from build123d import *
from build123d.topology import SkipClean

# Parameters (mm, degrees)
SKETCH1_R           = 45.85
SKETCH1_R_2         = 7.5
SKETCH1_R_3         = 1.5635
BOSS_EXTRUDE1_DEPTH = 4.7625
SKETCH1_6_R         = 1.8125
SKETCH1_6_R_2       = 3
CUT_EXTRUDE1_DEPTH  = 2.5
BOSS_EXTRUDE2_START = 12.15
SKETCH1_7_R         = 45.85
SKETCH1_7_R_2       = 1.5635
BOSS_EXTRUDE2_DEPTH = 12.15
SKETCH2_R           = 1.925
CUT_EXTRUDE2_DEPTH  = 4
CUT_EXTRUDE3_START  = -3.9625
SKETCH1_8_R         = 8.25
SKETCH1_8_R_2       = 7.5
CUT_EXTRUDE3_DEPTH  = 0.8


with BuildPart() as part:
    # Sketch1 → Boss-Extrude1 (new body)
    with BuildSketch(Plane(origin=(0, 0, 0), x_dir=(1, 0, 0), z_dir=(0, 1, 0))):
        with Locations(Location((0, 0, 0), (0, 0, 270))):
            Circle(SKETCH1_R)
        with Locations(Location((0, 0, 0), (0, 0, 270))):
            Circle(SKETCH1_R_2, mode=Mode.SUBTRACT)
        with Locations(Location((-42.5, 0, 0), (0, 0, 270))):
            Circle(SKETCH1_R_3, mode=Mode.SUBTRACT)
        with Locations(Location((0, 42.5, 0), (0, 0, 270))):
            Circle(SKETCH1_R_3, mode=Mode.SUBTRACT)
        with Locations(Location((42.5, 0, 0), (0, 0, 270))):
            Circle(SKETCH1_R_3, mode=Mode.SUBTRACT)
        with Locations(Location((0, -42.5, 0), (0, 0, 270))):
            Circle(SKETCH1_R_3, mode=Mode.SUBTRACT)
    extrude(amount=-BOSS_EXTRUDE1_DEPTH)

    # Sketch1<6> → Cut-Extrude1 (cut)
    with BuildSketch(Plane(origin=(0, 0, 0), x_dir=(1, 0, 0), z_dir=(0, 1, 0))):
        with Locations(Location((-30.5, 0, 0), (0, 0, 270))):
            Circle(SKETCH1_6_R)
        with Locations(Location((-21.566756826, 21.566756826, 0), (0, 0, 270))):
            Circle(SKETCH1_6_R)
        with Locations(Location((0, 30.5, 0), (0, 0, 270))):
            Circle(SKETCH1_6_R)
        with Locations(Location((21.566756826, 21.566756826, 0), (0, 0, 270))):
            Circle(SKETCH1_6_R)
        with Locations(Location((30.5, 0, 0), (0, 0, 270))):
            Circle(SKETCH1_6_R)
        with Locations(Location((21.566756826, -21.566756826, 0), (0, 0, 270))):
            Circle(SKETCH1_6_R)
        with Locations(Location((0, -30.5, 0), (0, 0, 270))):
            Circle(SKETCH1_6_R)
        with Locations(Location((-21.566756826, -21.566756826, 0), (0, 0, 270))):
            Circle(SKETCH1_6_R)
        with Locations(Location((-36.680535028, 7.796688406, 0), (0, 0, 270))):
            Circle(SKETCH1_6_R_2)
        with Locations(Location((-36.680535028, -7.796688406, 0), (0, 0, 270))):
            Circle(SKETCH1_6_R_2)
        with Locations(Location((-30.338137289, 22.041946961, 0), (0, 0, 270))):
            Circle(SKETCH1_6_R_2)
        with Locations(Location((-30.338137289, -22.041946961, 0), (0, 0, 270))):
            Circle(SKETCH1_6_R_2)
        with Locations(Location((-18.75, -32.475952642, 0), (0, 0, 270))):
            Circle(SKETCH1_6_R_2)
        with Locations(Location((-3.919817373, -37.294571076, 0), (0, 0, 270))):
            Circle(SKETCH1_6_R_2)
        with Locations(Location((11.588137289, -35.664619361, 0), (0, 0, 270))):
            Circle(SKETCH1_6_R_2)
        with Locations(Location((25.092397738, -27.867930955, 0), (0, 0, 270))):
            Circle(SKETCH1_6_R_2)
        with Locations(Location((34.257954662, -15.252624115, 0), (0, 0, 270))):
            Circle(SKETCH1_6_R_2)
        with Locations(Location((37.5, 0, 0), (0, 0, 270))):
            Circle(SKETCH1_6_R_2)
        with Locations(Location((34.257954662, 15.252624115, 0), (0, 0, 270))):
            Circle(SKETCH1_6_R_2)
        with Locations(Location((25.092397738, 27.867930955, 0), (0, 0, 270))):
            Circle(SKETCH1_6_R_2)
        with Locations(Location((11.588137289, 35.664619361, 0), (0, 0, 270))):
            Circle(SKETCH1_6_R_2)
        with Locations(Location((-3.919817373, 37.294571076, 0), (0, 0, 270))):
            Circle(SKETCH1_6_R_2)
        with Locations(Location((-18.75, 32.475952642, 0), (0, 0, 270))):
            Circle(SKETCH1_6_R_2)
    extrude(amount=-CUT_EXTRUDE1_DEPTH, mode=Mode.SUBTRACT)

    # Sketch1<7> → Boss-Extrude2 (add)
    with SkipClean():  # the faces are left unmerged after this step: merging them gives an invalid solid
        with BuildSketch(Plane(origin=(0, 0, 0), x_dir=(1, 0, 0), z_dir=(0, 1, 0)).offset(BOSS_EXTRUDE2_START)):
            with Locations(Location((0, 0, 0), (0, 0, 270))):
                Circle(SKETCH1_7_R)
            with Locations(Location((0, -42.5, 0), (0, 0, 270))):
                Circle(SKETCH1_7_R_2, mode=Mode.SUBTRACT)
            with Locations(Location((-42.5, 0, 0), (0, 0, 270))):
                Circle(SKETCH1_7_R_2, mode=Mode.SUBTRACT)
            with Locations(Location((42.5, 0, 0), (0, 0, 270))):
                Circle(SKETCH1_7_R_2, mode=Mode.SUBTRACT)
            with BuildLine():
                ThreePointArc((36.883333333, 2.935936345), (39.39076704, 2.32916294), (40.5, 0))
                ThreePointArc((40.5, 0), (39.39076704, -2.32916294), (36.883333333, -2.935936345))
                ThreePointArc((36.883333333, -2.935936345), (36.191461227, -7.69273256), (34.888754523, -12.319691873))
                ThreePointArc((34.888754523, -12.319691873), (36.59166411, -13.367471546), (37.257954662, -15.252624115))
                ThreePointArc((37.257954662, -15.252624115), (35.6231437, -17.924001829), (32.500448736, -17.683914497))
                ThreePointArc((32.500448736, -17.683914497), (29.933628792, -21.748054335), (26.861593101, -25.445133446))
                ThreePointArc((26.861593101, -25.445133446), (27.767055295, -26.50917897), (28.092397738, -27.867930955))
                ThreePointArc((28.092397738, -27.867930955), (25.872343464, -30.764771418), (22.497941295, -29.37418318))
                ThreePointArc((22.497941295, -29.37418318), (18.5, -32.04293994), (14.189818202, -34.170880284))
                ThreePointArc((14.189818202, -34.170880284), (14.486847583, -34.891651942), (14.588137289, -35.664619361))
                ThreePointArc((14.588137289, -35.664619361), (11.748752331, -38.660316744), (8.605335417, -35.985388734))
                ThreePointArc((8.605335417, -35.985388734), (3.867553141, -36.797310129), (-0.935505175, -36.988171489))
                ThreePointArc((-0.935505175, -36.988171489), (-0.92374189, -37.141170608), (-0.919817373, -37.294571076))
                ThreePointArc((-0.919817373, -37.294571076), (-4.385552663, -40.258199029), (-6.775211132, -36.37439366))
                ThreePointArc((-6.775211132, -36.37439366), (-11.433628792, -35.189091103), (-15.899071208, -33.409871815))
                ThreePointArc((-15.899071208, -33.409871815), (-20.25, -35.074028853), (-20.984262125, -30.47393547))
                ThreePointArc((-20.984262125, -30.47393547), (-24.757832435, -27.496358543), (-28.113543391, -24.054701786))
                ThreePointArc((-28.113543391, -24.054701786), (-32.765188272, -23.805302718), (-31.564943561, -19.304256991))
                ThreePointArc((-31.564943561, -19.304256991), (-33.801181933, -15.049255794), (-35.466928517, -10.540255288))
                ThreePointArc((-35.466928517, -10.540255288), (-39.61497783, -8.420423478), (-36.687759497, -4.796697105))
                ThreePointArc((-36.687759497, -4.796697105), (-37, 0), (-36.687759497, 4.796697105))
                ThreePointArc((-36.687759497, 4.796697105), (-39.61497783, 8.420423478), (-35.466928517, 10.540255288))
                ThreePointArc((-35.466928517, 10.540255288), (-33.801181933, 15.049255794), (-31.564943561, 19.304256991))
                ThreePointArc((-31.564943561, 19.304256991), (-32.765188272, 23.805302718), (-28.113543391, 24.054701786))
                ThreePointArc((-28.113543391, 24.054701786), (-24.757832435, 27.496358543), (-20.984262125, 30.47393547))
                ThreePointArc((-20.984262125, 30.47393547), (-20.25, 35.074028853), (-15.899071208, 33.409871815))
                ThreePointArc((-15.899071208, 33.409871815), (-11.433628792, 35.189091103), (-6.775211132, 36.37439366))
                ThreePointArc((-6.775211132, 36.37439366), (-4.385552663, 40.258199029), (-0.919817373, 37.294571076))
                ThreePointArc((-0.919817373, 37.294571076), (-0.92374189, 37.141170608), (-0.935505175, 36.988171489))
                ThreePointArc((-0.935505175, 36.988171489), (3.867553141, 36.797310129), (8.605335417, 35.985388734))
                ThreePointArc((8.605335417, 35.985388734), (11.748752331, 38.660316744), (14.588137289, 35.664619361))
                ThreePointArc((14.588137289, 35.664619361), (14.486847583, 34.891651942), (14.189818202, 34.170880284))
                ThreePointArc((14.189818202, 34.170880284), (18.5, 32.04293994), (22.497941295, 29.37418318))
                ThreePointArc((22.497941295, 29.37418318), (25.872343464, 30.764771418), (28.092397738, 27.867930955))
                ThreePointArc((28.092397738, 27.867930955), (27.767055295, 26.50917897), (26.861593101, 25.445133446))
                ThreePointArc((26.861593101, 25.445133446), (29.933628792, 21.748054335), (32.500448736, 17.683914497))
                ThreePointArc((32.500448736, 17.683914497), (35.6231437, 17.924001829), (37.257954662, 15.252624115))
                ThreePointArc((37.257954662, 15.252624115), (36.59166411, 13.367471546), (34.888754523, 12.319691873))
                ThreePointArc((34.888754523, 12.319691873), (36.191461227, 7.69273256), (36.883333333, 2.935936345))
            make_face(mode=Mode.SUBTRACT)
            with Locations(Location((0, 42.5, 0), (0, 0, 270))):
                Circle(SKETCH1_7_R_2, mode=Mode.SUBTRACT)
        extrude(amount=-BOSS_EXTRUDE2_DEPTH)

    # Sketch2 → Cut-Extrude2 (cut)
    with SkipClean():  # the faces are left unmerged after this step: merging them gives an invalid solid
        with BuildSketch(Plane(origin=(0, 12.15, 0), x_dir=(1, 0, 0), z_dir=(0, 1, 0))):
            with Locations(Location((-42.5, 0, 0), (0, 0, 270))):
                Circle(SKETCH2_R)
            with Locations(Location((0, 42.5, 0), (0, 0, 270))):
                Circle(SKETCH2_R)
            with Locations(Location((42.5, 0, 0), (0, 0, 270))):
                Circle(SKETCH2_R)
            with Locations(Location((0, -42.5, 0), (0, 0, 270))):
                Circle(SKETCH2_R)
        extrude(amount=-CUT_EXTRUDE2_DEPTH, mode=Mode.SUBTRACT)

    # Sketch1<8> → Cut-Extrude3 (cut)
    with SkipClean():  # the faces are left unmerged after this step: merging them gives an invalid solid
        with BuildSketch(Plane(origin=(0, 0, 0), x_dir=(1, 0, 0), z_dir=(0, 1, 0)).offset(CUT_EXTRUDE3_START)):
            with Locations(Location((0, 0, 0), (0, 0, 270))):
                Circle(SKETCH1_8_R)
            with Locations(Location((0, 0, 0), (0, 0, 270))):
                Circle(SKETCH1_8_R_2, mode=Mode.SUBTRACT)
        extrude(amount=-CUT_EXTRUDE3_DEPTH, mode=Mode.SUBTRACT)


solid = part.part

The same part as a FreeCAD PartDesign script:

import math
import FreeCAD as App
import Part
import Sketcher
from FreeCAD import Vector
Q = App.Units.Quantity

doc = App.newDocument("Part")
params = doc.addObject("Spreadsheet::Sheet", "Params")
for row, (alias, value) in enumerate([
    ("sketch1_diameter", "15 mm"),
    ("sketch1_diameter2", "91.7 mm"),
    ("pad1_length", "4.7625 mm"),
    ("sketch2_diameter", "6 mm"),
    ("pocket1_length", "2.5 mm"),
    ("sketch3_radius", "37 mm"),
    ("sketch3_radius2", "3 mm"),
    ("sketch3_diameter", "91.7 mm"),
    ("pad2_length", "12.15 mm"),
    ("sketch4_diameter", "3.85 mm"),
    ("pocket2_length", "4 mm"),
    ("sketch5_diameter", "15 mm"),
    ("sketch5_diameter2", "16.5 mm"),
    ("pocket3_length", "0.8 mm"),
], start=1):
    params.set(f"A{row}", alias)
    params.set(f"B{row}", "=" + value)
    params.setAlias(f"B{row}", alias)

body = doc.addObject("PartDesign::Body", "Body")

sketch1 = body.newObject("Sketcher::SketchObject", "Sketch")
sketch1.AttachmentSupport = (doc.getObject("XZ_Plane"), [""])
sketch1.MapMode = "FlatFace"
sketch1.addGeometry(Part.Circle(Vector(0, 0, 0), Vector(0, 0, 1), 45.9), False)
sketch1.addGeometry(Part.Circle(Vector(0, -42.5, 0), Vector(0, 0, 1), 1.6), False)
sketch1.addGeometry(Part.Circle(Vector(-42.5, 0, 0), Vector(0, 0, 1), 1.6), False)
sketch1.addGeometry(Part.Circle(Vector(42.5, 0, 0), Vector(0, 0, 1), 1.6), False)
sketch1.addGeometry(Part.Circle(Vector(0, 0, 0), Vector(0, 0, 1), 7.5), False)
sketch1.addGeometry(Part.Circle(Vector(0, 42.5, 0), Vector(0, 0, 1), 1.6), False)
sketch1.addConstraint(Sketcher.Constraint("Coincident", 0, 3, -1, 1))
sketch1.addConstraint(Sketcher.Constraint("Coincident", 4, 3, -1, 1))
sketch1.addConstraint(Sketcher.Constraint("Equal", 1, 2))
sketch1.addConstraint(Sketcher.Constraint("Equal", 2, 3))
sketch1.addConstraint(Sketcher.Constraint("Equal", 3, 5))
sketch1.addConstraint(Sketcher.Constraint("Symmetric", 2, 3, 3, 3, -1, 1))
sketch1.addConstraint(Sketcher.Constraint("Symmetric", 1, 3, 5, 3, -1, 1))
sketch1.addConstraint(Sketcher.Constraint("PointOnObject", 1, 3, -2))
sketch1.addConstraint(Sketcher.Constraint("PointOnObject", 2, 3, -1))
sketch1.addConstraint(Sketcher.Constraint("Diameter", 4, Q("15 mm")))
sketch1.addConstraint(Sketcher.Constraint("Diameter", 0, Q("91.7 mm")))
sketch1.addConstraint(Sketcher.Constraint("Diameter", 1, Q("3.127 mm")))
sketch1.addConstraint(Sketcher.Constraint("DistanceX", 2, 3, 3, 3, Q("85 mm")))
sketch1.addConstraint(Sketcher.Constraint("DistanceY", 1, 3, 5, 3, Q("85 mm")))
sketch1.setExpression("Constraints[9]", "Params.sketch1_diameter")
sketch1.setExpression("Constraints[10]", "Params.sketch1_diameter2")
pad1 = body.newObject("PartDesign::Pad", "Pad")
pad1.Profile = sketch1
pad1.setExpression("Length", "Params.pad1_length")

sketch2 = body.newObject("Sketcher::SketchObject", "Sketch001")
sketch2.AttachmentSupport = (doc.getObject("XZ_Plane"), [""])
sketch2.MapMode = "FlatFace"
sketch2.addGeometry(Part.Circle(Vector(-30.5, 0, 0), Vector(0, 0, 1), 1.8), False)
sketch2.addGeometry(Part.Circle(Vector(-21.6, -21.6, 0), Vector(0, 0, 1), 1.8), False)
sketch2.addGeometry(Part.Circle(Vector(0, -30.5, 0), Vector(0, 0, 1), 1.8), False)
sketch2.addGeometry(Part.Circle(Vector(21.6, -21.6, 0), Vector(0, 0, 1), 1.8), False)
sketch2.addGeometry(Part.Circle(Vector(30.5, 0, 0), Vector(0, 0, 1), 1.8), False)
sketch2.addGeometry(Part.Circle(Vector(21.6, 21.6, 0), Vector(0, 0, 1), 1.8), False)
sketch2.addGeometry(Part.Circle(Vector(0, 30.5, 0), Vector(0, 0, 1), 1.8), False)
sketch2.addGeometry(Part.Circle(Vector(-21.6, 21.6, 0), Vector(0, 0, 1), 1.8), False)
sketch2.addGeometry(Part.Circle(Vector(-36.7, -7.8, 0), Vector(0, 0, 1), 3), False)
sketch2.addGeometry(Part.Circle(Vector(-36.7, 7.8, 0), Vector(0, 0, 1), 3), False)
sketch2.addGeometry(Part.Circle(Vector(-30.3, -22, 0), Vector(0, 0, 1), 3), False)
sketch2.addGeometry(Part.Circle(Vector(-30.3, 22, 0), Vector(0, 0, 1), 3), False)
sketch2.addGeometry(Part.Circle(Vector(-18.8, 32.5, 0), Vector(0, 0, 1), 3), False)
sketch2.addGeometry(Part.Circle(Vector(-3.9, 37.3, 0), Vector(0, 0, 1), 3), False)
sketch2.addGeometry(Part.Circle(Vector(11.6, 35.7, 0), Vector(0, 0, 1), 3), False)
sketch2.addGeometry(Part.Circle(Vector(25.1, 27.9, 0), Vector(0, 0, 1), 3), False)
sketch2.addGeometry(Part.Circle(Vector(34.3, 15.3, 0), Vector(0, 0, 1), 3), False)
sketch2.addGeometry(Part.Circle(Vector(37.5, 0, 0), Vector(0, 0, 1), 3), False)
sketch2.addGeometry(Part.Circle(Vector(34.3, -15.3, 0), Vector(0, 0, 1), 3), False)
sketch2.addGeometry(Part.Circle(Vector(25.1, -27.9, 0), Vector(0, 0, 1), 3), False)
sketch2.addGeometry(Part.Circle(Vector(11.6, -35.7, 0), Vector(0, 0, 1), 3), False)
sketch2.addGeometry(Part.Circle(Vector(-3.9, -37.3, 0), Vector(0, 0, 1), 3), False)
sketch2.addGeometry(Part.Circle(Vector(-18.8, -32.5, 0), Vector(0, 0, 1), 3), False)
sketch2.addConstraint(Sketcher.Constraint("Equal", 0, 1))
sketch2.addConstraint(Sketcher.Constraint("Equal", 1, 2))
sketch2.addConstraint(Sketcher.Constraint("Equal", 2, 3))
sketch2.addConstraint(Sketcher.Constraint("Equal", 3, 4))
sketch2.addConstraint(Sketcher.Constraint("Equal", 4, 5))
sketch2.addConstraint(Sketcher.Constraint("Equal", 5, 6))
sketch2.addConstraint(Sketcher.Constraint("Equal", 6, 7))
sketch2.addConstraint(Sketcher.Constraint("Equal", 8, 9))
sketch2.addConstraint(Sketcher.Constraint("Equal", 9, 10))
sketch2.addConstraint(Sketcher.Constraint("Equal", 10, 11))
sketch2.addConstraint(Sketcher.Constraint("Equal", 11, 12))
sketch2.addConstraint(Sketcher.Constraint("Equal", 12, 13))
sketch2.addConstraint(Sketcher.Constraint("Equal", 13, 14))
sketch2.addConstraint(Sketcher.Constraint("Equal", 14, 15))
sketch2.addConstraint(Sketcher.Constraint("Equal", 15, 16))
sketch2.addConstraint(Sketcher.Constraint("Equal", 16, 17))
sketch2.addConstraint(Sketcher.Constraint("Equal", 17, 18))
sketch2.addConstraint(Sketcher.Constraint("Equal", 18, 19))
sketch2.addConstraint(Sketcher.Constraint("Equal", 19, 20))
sketch2.addConstraint(Sketcher.Constraint("Equal", 20, 21))
sketch2.addConstraint(Sketcher.Constraint("Equal", 21, 22))
sketch2.addConstraint(Sketcher.Constraint("Symmetric", 0, 3, 4, 3, -1, 1))
sketch2.addConstraint(Sketcher.Constraint("Symmetric", 1, 3, 5, 3, -1, 1))
sketch2.addConstraint(Sketcher.Constraint("Symmetric", 2, 3, 6, 3, -1, 1))
sketch2.addConstraint(Sketcher.Constraint("Symmetric", 3, 3, 7, 3, -1, 1))
sketch2.addConstraint(Sketcher.Constraint("Symmetric", 1, 3, 3, 3, -2))
sketch2.addConstraint(Sketcher.Constraint("Symmetric", 8, 3, 9, 3, -1))
sketch2.addConstraint(Sketcher.Constraint("Symmetric", 10, 3, 11, 3, -1))
sketch2.addConstraint(Sketcher.Constraint("Symmetric", 16, 3, 18, 3, -1))
sketch2.addConstraint(Sketcher.Constraint("Symmetric", 15, 3, 19, 3, -1))
sketch2.addConstraint(Sketcher.Constraint("Symmetric", 14, 3, 20, 3, -1))
sketch2.addConstraint(Sketcher.Constraint("Symmetric", 13, 3, 21, 3, -1))
sketch2.addConstraint(Sketcher.Constraint("Symmetric", 12, 3, 22, 3, -1))
sketch2.addConstraint(Sketcher.Constraint("PointOnObject", 0, 3, -1))
sketch2.addConstraint(Sketcher.Constraint("PointOnObject", 2, 3, -2))
sketch2.addConstraint(Sketcher.Constraint("PointOnObject", 17, 3, -1))
sketch2.addConstraint(Sketcher.Constraint("Diameter", 8, Q("6 mm")))
sketch2.addConstraint(Sketcher.Constraint("Diameter", 0, Q("3.625 mm")))
sketch2.addConstraint(Sketcher.Constraint("DistanceX", 0, 3, 4, 3, Q("61 mm")))
sketch2.addConstraint(Sketcher.Constraint("DistanceX", 4, 3, 17, 3, Q("7 mm")))
sketch2.addConstraint(Sketcher.Constraint("DistanceY", 2, 3, -1, 1, Q("30.5 mm")))
sketch2.addConstraint(Sketcher.Constraint("DistanceX", 12, 3, -1, 1, Q("18.75 mm")))
sketch2.addConstraint(Sketcher.Constraint("DistanceY", 8, 3, -1, 1, Q("7.796688 mm")))
sketch2.addConstraint(Sketcher.Constraint("DistanceY", -1, 1, 13, 3, Q("37.294571 mm")))
sketch2.addConstraint(Sketcher.Constraint("DistanceY", -1, 1, 14, 3, Q("35.664619 mm")))
sketch2.addConstraint(Sketcher.Constraint("DistanceY", -1, 1, 15, 3, Q("27.867931 mm")))
sketch2.addConstraint(Sketcher.Constraint("DistanceX", 8, 3, 1, 3, Q("15.113778 mm")))
sketch2.addConstraint(Sketcher.Constraint("DistanceY", 1, 3, 8, 3, Q("13.770068 mm")))
sketch2.addConstraint(Sketcher.Constraint("DistanceX", 10, 3, 1, 3, Q("8.77138 mm")))
sketch2.addConstraint(Sketcher.Constraint("DistanceY", 10, 3, 1, 3, Q("0.47519 mm")))
sketch2.addConstraint(Sketcher.Constraint("DistanceY", 12, 3, 13, 3, Q("4.818618 mm")))
sketch2.addConstraint(Sketcher.Constraint("DistanceX", 7, 3, 13, 3, Q("17.646939 mm")))
sketch2.addConstraint(Sketcher.Constraint("DistanceX", 14, 3, 5, 3, Q("9.97862 mm")))
sketch2.addConstraint(Sketcher.Constraint("DistanceX", 5, 3, 15, 3, Q("3.525641 mm")))
sketch2.addConstraint(Sketcher.Constraint("DistanceY", 18, 3, 16, 3, Q("30.505248 mm")))
sketch2.addConstraint(Sketcher.Constraint("DistanceX", 1, 3, -1, 1, Q("21.566757 mm")))
sketch2.addConstraint(Sketcher.Constraint("DistanceX", -1, 1, 16, 3, Q("34.257955 mm")))
sketch2.setExpression("Constraints[36]", "Params.sketch2_diameter")
pocket1 = body.newObject("PartDesign::Pocket", "Pocket")
pocket1.Profile = sketch2
pocket1.setExpression("Length", "Params.pocket1_length")
pocket1.Reversed = True

sketch3 = body.newObject("Sketcher::SketchObject", "Sketch002")
sketch3.AttachmentSupport = (doc.getObject("XZ_Plane"), [""])
sketch3.MapMode = "FlatFace"
sketch3.AttachmentOffset = App.Placement(Vector(0, 0, -12.15), App.Rotation())
sketch3.addGeometry(Part.Circle(Vector(0, 0, 0), Vector(0, 0, 1), 45.85), False)
sketch3.addGeometry(Part.Circle(Vector(0, -42.5, 0), Vector(0, 0, 1), 1.56), False)
sketch3.addGeometry(Part.Circle(Vector(-42.5, 0, 0), Vector(0, 0, 1), 1.56), False)
sketch3.addGeometry(Part.Circle(Vector(42.5, 0, 0), Vector(0, 0, 1), 1.56), False)
sketch3.addGeometry(Part.ArcOfCircle(Part.Circle(Vector(0, 0, 0), Vector(0, 0, 1), 37), math.radians(-19.45), math.radians(-4.55)), False)
sketch3.addGeometry(Part.ArcOfCircle(Part.Circle(Vector(37.5, 0, 0), Vector(0, 0, 1), 3), math.radians(-102), math.radians(0)), False)
sketch3.addGeometry(Part.ArcOfCircle(Part.Circle(Vector(37.5, 0, 0), Vector(0, 0, 1), 3), math.radians(0), math.radians(102)), False)
sketch3.addGeometry(Part.ArcOfCircle(Part.Circle(Vector(0, 0, 0), Vector(0, 0, 1), 37), math.radians(4.55), math.radians(19.45)), False)
sketch3.addGeometry(Part.ArcOfCircle(Part.Circle(Vector(34.26, 15.25, 0), Vector(0, 0, 1), 3), math.radians(-78), math.radians(0)), False)
sketch3.addGeometry(Part.ArcOfCircle(Part.Circle(Vector(34.26, 15.25, 0), Vector(0, 0, 1), 3), math.radians(0), math.radians(126)), False)
sketch3.addGeometry(Part.ArcOfCircle(Part.Circle(Vector(0, 0, 0), Vector(0, 0, 1), 37), math.radians(28.55), math.radians(43.45)), False)
sketch3.addGeometry(Part.ArcOfCircle(Part.Circle(Vector(25.09, 27.87, 0), Vector(0, 0, 1), 3), math.radians(-54), math.radians(0)), False)
sketch3.addGeometry(Part.ArcOfCircle(Part.Circle(Vector(25.09, 27.87, 0), Vector(0, 0, 1), 3), math.radians(0), math.radians(150)), False)
sketch3.addGeometry(Part.ArcOfCircle(Part.Circle(Vector(0, 0, 0), Vector(0, 0, 1), 37), math.radians(52.55), math.radians(67.45)), False)
sketch3.addGeometry(Part.ArcOfCircle(Part.Circle(Vector(11.59, 35.66, 0), Vector(0, 0, 1), 3), math.radians(-30), math.radians(0)), False)
sketch3.addGeometry(Part.ArcOfCircle(Part.Circle(Vector(11.59, 35.66, 0), Vector(0, 0, 1), 3), math.radians(0), math.radians(174)), False)
sketch3.addGeometry(Part.ArcOfCircle(Part.Circle(Vector(0, 0, 0), Vector(0, 0, 1), 37), math.radians(76.55), math.radians(91.45)), False)
sketch3.addGeometry(Part.ArcOfCircle(Part.Circle(Vector(-3.92, 37.29, 0), Vector(0, 0, 1), 3), math.radians(-5.86), math.radians(0)), False)
sketch3.addGeometry(Part.ArcOfCircle(Part.Circle(Vector(-3.92, 37.29, 0), Vector(0, 0, 1), 3), math.radians(0), math.radians(198)), False)
sketch3.addGeometry(Part.ArcOfCircle(Part.Circle(Vector(0, 0, 0), Vector(0, 0, 1), 37), math.radians(100.55), math.radians(115.45)), False)
sketch3.addGeometry(Part.ArcOfCircle(Part.Circle(Vector(-18.75, 32.48, 0), Vector(0, 0, 1), 3), math.radians(18), math.radians(222)), False)
sketch3.addGeometry(Part.ArcOfCircle(Part.Circle(Vector(0, 0, 0), Vector(0, 0, 1), 37), math.radians(124.55), math.radians(139.45)), False)
sketch3.addGeometry(Part.ArcOfCircle(Part.Circle(Vector(-30.34, 22.04, 0), Vector(0, 0, 1), 3), math.radians(42), math.radians(246)), False)
sketch3.addGeometry(Part.ArcOfCircle(Part.Circle(Vector(0, 0, 0), Vector(0, 0, 1), 37), math.radians(148.55), math.radians(163.45)), False)
sketch3.addGeometry(Part.ArcOfCircle(Part.Circle(Vector(-36.68, 7.8, 0), Vector(0, 0, 1), 3), math.radians(66), math.radians(270)), False)
sketch3.addGeometry(Part.ArcOfCircle(Part.Circle(Vector(0, 0, 0), Vector(0, 0, 1), 37), math.radians(172.55), math.radians(187.45)), False)
sketch3.addGeometry(Part.ArcOfCircle(Part.Circle(Vector(-36.68, -7.8, 0), Vector(0, 0, 1), 3), math.radians(90), math.radians(294)), False)
sketch3.addGeometry(Part.ArcOfCircle(Part.Circle(Vector(0, 0, 0), Vector(0, 0, 1), 37), math.radians(-163.45), math.radians(-148.55)), False)
sketch3.addGeometry(Part.ArcOfCircle(Part.Circle(Vector(-30.34, -22.04, 0), Vector(0, 0, 1), 3), math.radians(114), math.radians(318)), False)
sketch3.addGeometry(Part.ArcOfCircle(Part.Circle(Vector(0, 0, 0), Vector(0, 0, 1), 37), math.radians(-139.45), math.radians(-124.55)), False)
sketch3.addGeometry(Part.ArcOfCircle(Part.Circle(Vector(-18.75, -32.48, 0), Vector(0, 0, 1), 3), math.radians(138), math.radians(342)), False)
sketch3.addGeometry(Part.ArcOfCircle(Part.Circle(Vector(0, 0, 0), Vector(0, 0, 1), 37), math.radians(-115.45), math.radians(-100.55)), False)
sketch3.addGeometry(Part.ArcOfCircle(Part.Circle(Vector(-3.92, -37.29, 0), Vector(0, 0, 1), 3), math.radians(162), math.radians(360)), False)
sketch3.addGeometry(Part.ArcOfCircle(Part.Circle(Vector(-3.92, -37.29, 0), Vector(0, 0, 1), 3), math.radians(0), math.radians(5.86)), False)
sketch3.addGeometry(Part.ArcOfCircle(Part.Circle(Vector(0, 0, 0), Vector(0, 0, 1), 37), math.radians(-91.45), math.radians(-76.55)), False)
sketch3.addGeometry(Part.ArcOfCircle(Part.Circle(Vector(11.59, -35.66, 0), Vector(0, 0, 1), 3), math.radians(-174), math.radians(0)), False)
sketch3.addGeometry(Part.ArcOfCircle(Part.Circle(Vector(11.59, -35.66, 0), Vector(0, 0, 1), 3), math.radians(0), math.radians(30)), False)
sketch3.addGeometry(Part.ArcOfCircle(Part.Circle(Vector(0, 0, 0), Vector(0, 0, 1), 37), math.radians(-67.45), math.radians(-52.55)), False)
sketch3.addGeometry(Part.ArcOfCircle(Part.Circle(Vector(25.09, -27.87, 0), Vector(0, 0, 1), 3), math.radians(-150), math.radians(0)), False)
sketch3.addGeometry(Part.ArcOfCircle(Part.Circle(Vector(25.09, -27.87, 0), Vector(0, 0, 1), 3), math.radians(0), math.radians(54)), False)
sketch3.addGeometry(Part.ArcOfCircle(Part.Circle(Vector(0, 0, 0), Vector(0, 0, 1), 37), math.radians(-43.45), math.radians(-28.55)), False)
sketch3.addGeometry(Part.ArcOfCircle(Part.Circle(Vector(34.26, -15.25, 0), Vector(0, 0, 1), 3), math.radians(-126), math.radians(0)), False)
sketch3.addGeometry(Part.ArcOfCircle(Part.Circle(Vector(34.26, -15.25, 0), Vector(0, 0, 1), 3), math.radians(0), math.radians(78)), False)
sketch3.addGeometry(Part.Circle(Vector(0, 42.5, 0), Vector(0, 0, 1), 1.56), False)
sketch3.addConstraint(Sketcher.Constraint("Coincident", 4, 2, 5, 1))
sketch3.addConstraint(Sketcher.Constraint("Tangent", 5, 2, 6, 1))
sketch3.addConstraint(Sketcher.Constraint("Coincident", 6, 2, 7, 1))
sketch3.addConstraint(Sketcher.Constraint("Coincident", 7, 2, 8, 1))
sketch3.addConstraint(Sketcher.Constraint("Tangent", 8, 2, 9, 1))
sketch3.addConstraint(Sketcher.Constraint("Coincident", 9, 2, 10, 1))
sketch3.addConstraint(Sketcher.Constraint("Coincident", 10, 2, 11, 1))
sketch3.addConstraint(Sketcher.Constraint("Tangent", 11, 2, 12, 1))
sketch3.addConstraint(Sketcher.Constraint("Coincident", 12, 2, 13, 1))
sketch3.addConstraint(Sketcher.Constraint("Coincident", 13, 2, 14, 1))
sketch3.addConstraint(Sketcher.Constraint("Tangent", 14, 2, 15, 1))
sketch3.addConstraint(Sketcher.Constraint("Coincident", 15, 2, 16, 1))
sketch3.addConstraint(Sketcher.Constraint("Coincident", 16, 2, 17, 1))
sketch3.addConstraint(Sketcher.Constraint("Tangent", 17, 2, 18, 1))
sketch3.addConstraint(Sketcher.Constraint("Coincident", 18, 2, 19, 1))
sketch3.addConstraint(Sketcher.Constraint("Coincident", 19, 2, 20, 1))
sketch3.addConstraint(Sketcher.Constraint("Coincident", 20, 2, 21, 1))
sketch3.addConstraint(Sketcher.Constraint("Coincident", 21, 2, 22, 1))
sketch3.addConstraint(Sketcher.Constraint("Coincident", 22, 2, 23, 1))
sketch3.addConstraint(Sketcher.Constraint("Coincident", 23, 2, 24, 1))
sketch3.addConstraint(Sketcher.Constraint("Coincident", 24, 2, 25, 1))
sketch3.addConstraint(Sketcher.Constraint("Coincident", 25, 2, 26, 1))
sketch3.addConstraint(Sketcher.Constraint("Coincident", 26, 2, 27, 1))
sketch3.addConstraint(Sketcher.Constraint("Coincident", 27, 2, 28, 1))
sketch3.addConstraint(Sketcher.Constraint("Coincident", 28, 2, 29, 1))
sketch3.addConstraint(Sketcher.Constraint("Coincident", 29, 2, 30, 1))
sketch3.addConstraint(Sketcher.Constraint("Coincident", 30, 2, 31, 1))
sketch3.addConstraint(Sketcher.Constraint("Coincident", 31, 2, 32, 1))
sketch3.addConstraint(Sketcher.Constraint("Tangent", 32, 2, 33, 1))
sketch3.addConstraint(Sketcher.Constraint("Coincident", 33, 2, 34, 1))
sketch3.addConstraint(Sketcher.Constraint("Coincident", 34, 2, 35, 1))
sketch3.addConstraint(Sketcher.Constraint("Tangent", 35, 2, 36, 1))
sketch3.addConstraint(Sketcher.Constraint("Coincident", 36, 2, 37, 1))
sketch3.addConstraint(Sketcher.Constraint("Coincident", 37, 2, 38, 1))
sketch3.addConstraint(Sketcher.Constraint("Tangent", 38, 2, 39, 1))
sketch3.addConstraint(Sketcher.Constraint("Coincident", 39, 2, 40, 1))
sketch3.addConstraint(Sketcher.Constraint("Coincident", 40, 2, 41, 1))
sketch3.addConstraint(Sketcher.Constraint("Tangent", 41, 2, 42, 1))
sketch3.addConstraint(Sketcher.Constraint("Coincident", 42, 2, 4, 1))
sketch3.addConstraint(Sketcher.Constraint("Coincident", 0, 3, -1, 1))
sketch3.addConstraint(Sketcher.Constraint("Coincident", 4, 3, -1, 1))
sketch3.addConstraint(Sketcher.Constraint("Coincident", 7, 3, -1, 1))
sketch3.addConstraint(Sketcher.Constraint("Coincident", 10, 3, -1, 1))
sketch3.addConstraint(Sketcher.Constraint("Coincident", 13, 3, -1, 1))
sketch3.addConstraint(Sketcher.Constraint("Coincident", 16, 3, -1, 1))
sketch3.addConstraint(Sketcher.Constraint("Coincident", 19, 3, -1, 1))
sketch3.addConstraint(Sketcher.Constraint("Coincident", 21, 3, -1, 1))
sketch3.addConstraint(Sketcher.Constraint("Coincident", 23, 3, -1, 1))
sketch3.addConstraint(Sketcher.Constraint("Coincident", 25, 3, -1, 1))
sketch3.addConstraint(Sketcher.Constraint("Coincident", 27, 3, -1, 1))
sketch3.addConstraint(Sketcher.Constraint("Coincident", 29, 3, -1, 1))
sketch3.addConstraint(Sketcher.Constraint("Coincident", 31, 3, -1, 1))
sketch3.addConstraint(Sketcher.Constraint("Coincident", 34, 3, -1, 1))
sketch3.addConstraint(Sketcher.Constraint("Coincident", 37, 3, -1, 1))
sketch3.addConstraint(Sketcher.Constraint("Coincident", 40, 3, -1, 1))
sketch3.addConstraint(Sketcher.Constraint("Equal", 1, 2))
sketch3.addConstraint(Sketcher.Constraint("Equal", 2, 3))
sketch3.addConstraint(Sketcher.Constraint("Equal", 5, 6))
sketch3.addConstraint(Sketcher.Constraint("Equal", 4, 7))
sketch3.addConstraint(Sketcher.Constraint("Equal", 6, 8))
sketch3.addConstraint(Sketcher.Constraint("Equal", 8, 9))
sketch3.addConstraint(Sketcher.Constraint("Equal", 7, 10))
sketch3.addConstraint(Sketcher.Constraint("Equal", 9, 11))
sketch3.addConstraint(Sketcher.Constraint("Equal", 11, 12))
sketch3.addConstraint(Sketcher.Constraint("Equal", 10, 13))
sketch3.addConstraint(Sketcher.Constraint("Equal", 12, 14))
sketch3.addConstraint(Sketcher.Constraint("Equal", 14, 15))
sketch3.addConstraint(Sketcher.Constraint("Equal", 13, 16))
sketch3.addConstraint(Sketcher.Constraint("Equal", 15, 17))
sketch3.addConstraint(Sketcher.Constraint("Equal", 17, 18))
sketch3.addConstraint(Sketcher.Constraint("Equal", 16, 19))
sketch3.addConstraint(Sketcher.Constraint("Equal", 18, 20))
sketch3.addConstraint(Sketcher.Constraint("Equal", 19, 21))
sketch3.addConstraint(Sketcher.Constraint("Equal", 20, 22))
sketch3.addConstraint(Sketcher.Constraint("Equal", 21, 23))
sketch3.addConstraint(Sketcher.Constraint("Equal", 22, 24))
sketch3.addConstraint(Sketcher.Constraint("Equal", 23, 25))
sketch3.addConstraint(Sketcher.Constraint("Equal", 24, 26))
sketch3.addConstraint(Sketcher.Constraint("Equal", 25, 27))
sketch3.addConstraint(Sketcher.Constraint("Equal", 26, 28))
sketch3.addConstraint(Sketcher.Constraint("Equal", 27, 29))
sketch3.addConstraint(Sketcher.Constraint("Equal", 28, 30))
sketch3.addConstraint(Sketcher.Constraint("Equal", 29, 31))
sketch3.addConstraint(Sketcher.Constraint("Equal", 30, 32))
sketch3.addConstraint(Sketcher.Constraint("Equal", 32, 33))
sketch3.addConstraint(Sketcher.Constraint("Equal", 31, 34))
sketch3.addConstraint(Sketcher.Constraint("Equal", 33, 35))
sketch3.addConstraint(Sketcher.Constraint("Equal", 35, 36))
sketch3.addConstraint(Sketcher.Constraint("Equal", 34, 37))
sketch3.addConstraint(Sketcher.Constraint("Equal", 36, 38))
sketch3.addConstraint(Sketcher.Constraint("Equal", 38, 39))
sketch3.addConstraint(Sketcher.Constraint("Equal", 37, 40))
sketch3.addConstraint(Sketcher.Constraint("Equal", 39, 41))
sketch3.addConstraint(Sketcher.Constraint("Equal", 41, 42))
sketch3.addConstraint(Sketcher.Constraint("Equal", 3, 43))
sketch3.addConstraint(Sketcher.Constraint("Symmetric", 2, 3, 3, 3, -1, 1))
sketch3.addConstraint(Sketcher.Constraint("Symmetric", 1, 3, 43, 3, -1, 1))
sketch3.addConstraint(Sketcher.Constraint("Symmetric", 24, 3, 26, 3, -1))
sketch3.addConstraint(Sketcher.Constraint("Symmetric", 22, 3, 28, 3, -1))
sketch3.addConstraint(Sketcher.Constraint("Symmetric", 20, 3, 30, 3, -1))
sketch3.addConstraint(Sketcher.Constraint("Symmetric", 17, 3, 32, 3, -1))
sketch3.addConstraint(Sketcher.Constraint("Symmetric", 14, 3, 35, 3, -1))
sketch3.addConstraint(Sketcher.Constraint("Symmetric", 11, 3, 38, 3, -1))
sketch3.addConstraint(Sketcher.Constraint("Symmetric", 8, 3, 41, 3, -1))
sketch3.addConstraint(Sketcher.Constraint("PointOnObject", 1, 3, -2))
sketch3.addConstraint(Sketcher.Constraint("PointOnObject", 2, 3, -1))
sketch3.addConstraint(Sketcher.Constraint("PointOnObject", 5, 3, -1))
sketch3.addConstraint(Sketcher.Constraint("PointOnObject", 5, 2, -1))
sketch3.addConstraint(Sketcher.Constraint("Horizontal", 9, 3, 8, 2))
sketch3.addConstraint(Sketcher.Constraint("Horizontal", 12, 3, 11, 2))
sketch3.addConstraint(Sketcher.Constraint("Horizontal", 15, 3, 14, 2))
sketch3.addConstraint(Sketcher.Constraint("Horizontal", 18, 3, 17, 2))
sketch3.addConstraint(Sketcher.Constraint("Horizontal", 33, 3, 32, 2))
sketch3.addConstraint(Sketcher.Constraint("Horizontal", 36, 3, 35, 2))
sketch3.addConstraint(Sketcher.Constraint("Horizontal", 39, 3, 38, 2))
sketch3.addConstraint(Sketcher.Constraint("Horizontal", 42, 3, 41, 2))
sketch3.addConstraint(Sketcher.Constraint("Radius", 4, Q("37 mm")))
sketch3.addConstraint(Sketcher.Constraint("Radius", 5, Q("3 mm")))
sketch3.addConstraint(Sketcher.Constraint("Diameter", 0, Q("91.7 mm")))
sketch3.addConstraint(Sketcher.Constraint("Diameter", 1, Q("3.127 mm")))
sketch3.addConstraint(Sketcher.Constraint("DistanceY", 1, 3, -1, 1, Q("42.5 mm")))
sketch3.addConstraint(Sketcher.Constraint("DistanceX", 2, 3, -1, 1, Q("42.5 mm")))
sketch3.addConstraint(Sketcher.Constraint("DistanceX", -1, 1, 5, 3, Q("37.5 mm")))
sketch3.addConstraint(Sketcher.Constraint("DistanceX", 20, 3, -1, 1, Q("18.75 mm")))
sketch3.addConstraint(Sketcher.Constraint("DistanceY", -1, 1, 21, 2, Q("24.054702 mm")))
sketch3.addConstraint(Sketcher.Constraint("DistanceY", -1, 1, 11, 3, Q("27.867931 mm")))
sketch3.addConstraint(Sketcher.Constraint("DistanceY", -1, 1, 14, 3, Q("35.664619 mm")))
sketch3.addConstraint(Sketcher.Constraint("DistanceY", -1, 1, 17, 3, Q("37.294571 mm")))
sketch3.addConstraint(Sketcher.Constraint("DistanceY", -1, 1, 24, 3, Q("7.796688 mm")))
sketch3.addConstraint(Sketcher.Constraint("DistanceY", -1, 1, 7, 2, Q("12.319692 mm")))
sketch3.addConstraint(Sketcher.Constraint("DistanceX", -1, 1, 9, 2, Q("32.500449 mm")))
sketch3.addConstraint(Sketcher.Constraint("DistanceX", -1, 1, 12, 2, Q("22.497941 mm")))
sketch3.addConstraint(Sketcher.Constraint("DistanceX", -1, 1, 13, 2, Q("14.189818 mm")))
sketch3.addConstraint(Sketcher.Constraint("DistanceY", -1, 1, 16, 2, Q("36.988171 mm")))
sketch3.addConstraint(Sketcher.Constraint("DistanceX", 19, 2, -1, 1, Q("15.899071 mm")))
sketch3.addConstraint(Sketcher.Constraint("DistanceX", 23, 2, -1, 1, Q("35.466929 mm")))
sketch3.addConstraint(Sketcher.Constraint("DistanceX", 22, 3, -1, 1, Q("30.338137 mm")))
sketch3.setExpression("Constraints[116]", "Params.sketch3_radius")
sketch3.setExpression("Constraints[117]", "Params.sketch3_radius2")
sketch3.setExpression("Constraints[118]", "Params.sketch3_diameter")
pad2 = body.newObject("PartDesign::Pad", "Pad001")
pad2.Profile = sketch3
pad2.setExpression("Length", "Params.pad2_length")

sketch4 = body.newObject("Sketcher::SketchObject", "Sketch003")
sketch4.AttachmentSupport = (doc.getObject("XZ_Plane"), [""])
sketch4.MapMode = "FlatFace"
sketch4.AttachmentOffset = App.Placement(Vector(0, 0, -12.15), App.Rotation())
sketch4.addGeometry(Part.Circle(Vector(-42.5, 0, 0), Vector(0, 0, 1), 1.9), False)
sketch4.addGeometry(Part.Circle(Vector(0, -42.5, 0), Vector(0, 0, 1), 1.9), False)
sketch4.addGeometry(Part.Circle(Vector(42.5, 0, 0), Vector(0, 0, 1), 1.9), False)
sketch4.addGeometry(Part.Circle(Vector(0, 42.5, 0), Vector(0, 0, 1), 1.9), False)
sketch4.addConstraint(Sketcher.Constraint("Equal", 0, 1))
sketch4.addConstraint(Sketcher.Constraint("Equal", 1, 2))
sketch4.addConstraint(Sketcher.Constraint("Equal", 2, 3))
sketch4.addConstraint(Sketcher.Constraint("Symmetric", 0, 3, 2, 3, -1, 1))
sketch4.addConstraint(Sketcher.Constraint("Symmetric", 1, 3, 3, 3, -1, 1))
sketch4.addConstraint(Sketcher.Constraint("PointOnObject", 0, 3, -1))
sketch4.addConstraint(Sketcher.Constraint("PointOnObject", 1, 3, -2))
sketch4.addConstraint(Sketcher.Constraint("Diameter", 0, Q("3.85 mm")))
sketch4.addConstraint(Sketcher.Constraint("DistanceX", 0, 3, 2, 3, Q("85 mm")))
sketch4.addConstraint(Sketcher.Constraint("DistanceY", 1, 3, 3, 3, Q("85 mm")))
sketch4.setExpression("Constraints[7]", "Params.sketch4_diameter")
pocket2 = body.newObject("PartDesign::Pocket", "Pocket001")
pocket2.Profile = sketch4
pocket2.setExpression("Length", "Params.pocket2_length")
pocket2.Reversed = True

sketch5 = body.newObject("Sketcher::SketchObject", "Sketch004")
sketch5.AttachmentSupport = (doc.getObject("XZ_Plane"), [""])
sketch5.MapMode = "FlatFace"
sketch5.AttachmentOffset = App.Placement(Vector(0, 0, 3.9625), App.Rotation())
sketch5.addGeometry(Part.Circle(Vector(0, 0, 0), Vector(0, 0, 1), 8), False)
sketch5.addGeometry(Part.Circle(Vector(0, 0, 0), Vector(0, 0, 1), 8), False)
sketch5.addConstraint(Sketcher.Constraint("Coincident", 0, 3, -1, 1))
sketch5.addConstraint(Sketcher.Constraint("Coincident", 1, 3, -1, 1))
sketch5.addConstraint(Sketcher.Constraint("Diameter", 1, Q("15 mm")))
sketch5.addConstraint(Sketcher.Constraint("Diameter", 0, Q("16.5 mm")))
sketch5.setExpression("Constraints[2]", "Params.sketch5_diameter")
sketch5.setExpression("Constraints[3]", "Params.sketch5_diameter2")
pocket3 = body.newObject("PartDesign::Pocket", "Pocket002")
pocket3.Profile = sketch5
pocket3.setExpression("Length", "Params.pocket3_length")
pocket3.Reversed = True

doc.recompute()
